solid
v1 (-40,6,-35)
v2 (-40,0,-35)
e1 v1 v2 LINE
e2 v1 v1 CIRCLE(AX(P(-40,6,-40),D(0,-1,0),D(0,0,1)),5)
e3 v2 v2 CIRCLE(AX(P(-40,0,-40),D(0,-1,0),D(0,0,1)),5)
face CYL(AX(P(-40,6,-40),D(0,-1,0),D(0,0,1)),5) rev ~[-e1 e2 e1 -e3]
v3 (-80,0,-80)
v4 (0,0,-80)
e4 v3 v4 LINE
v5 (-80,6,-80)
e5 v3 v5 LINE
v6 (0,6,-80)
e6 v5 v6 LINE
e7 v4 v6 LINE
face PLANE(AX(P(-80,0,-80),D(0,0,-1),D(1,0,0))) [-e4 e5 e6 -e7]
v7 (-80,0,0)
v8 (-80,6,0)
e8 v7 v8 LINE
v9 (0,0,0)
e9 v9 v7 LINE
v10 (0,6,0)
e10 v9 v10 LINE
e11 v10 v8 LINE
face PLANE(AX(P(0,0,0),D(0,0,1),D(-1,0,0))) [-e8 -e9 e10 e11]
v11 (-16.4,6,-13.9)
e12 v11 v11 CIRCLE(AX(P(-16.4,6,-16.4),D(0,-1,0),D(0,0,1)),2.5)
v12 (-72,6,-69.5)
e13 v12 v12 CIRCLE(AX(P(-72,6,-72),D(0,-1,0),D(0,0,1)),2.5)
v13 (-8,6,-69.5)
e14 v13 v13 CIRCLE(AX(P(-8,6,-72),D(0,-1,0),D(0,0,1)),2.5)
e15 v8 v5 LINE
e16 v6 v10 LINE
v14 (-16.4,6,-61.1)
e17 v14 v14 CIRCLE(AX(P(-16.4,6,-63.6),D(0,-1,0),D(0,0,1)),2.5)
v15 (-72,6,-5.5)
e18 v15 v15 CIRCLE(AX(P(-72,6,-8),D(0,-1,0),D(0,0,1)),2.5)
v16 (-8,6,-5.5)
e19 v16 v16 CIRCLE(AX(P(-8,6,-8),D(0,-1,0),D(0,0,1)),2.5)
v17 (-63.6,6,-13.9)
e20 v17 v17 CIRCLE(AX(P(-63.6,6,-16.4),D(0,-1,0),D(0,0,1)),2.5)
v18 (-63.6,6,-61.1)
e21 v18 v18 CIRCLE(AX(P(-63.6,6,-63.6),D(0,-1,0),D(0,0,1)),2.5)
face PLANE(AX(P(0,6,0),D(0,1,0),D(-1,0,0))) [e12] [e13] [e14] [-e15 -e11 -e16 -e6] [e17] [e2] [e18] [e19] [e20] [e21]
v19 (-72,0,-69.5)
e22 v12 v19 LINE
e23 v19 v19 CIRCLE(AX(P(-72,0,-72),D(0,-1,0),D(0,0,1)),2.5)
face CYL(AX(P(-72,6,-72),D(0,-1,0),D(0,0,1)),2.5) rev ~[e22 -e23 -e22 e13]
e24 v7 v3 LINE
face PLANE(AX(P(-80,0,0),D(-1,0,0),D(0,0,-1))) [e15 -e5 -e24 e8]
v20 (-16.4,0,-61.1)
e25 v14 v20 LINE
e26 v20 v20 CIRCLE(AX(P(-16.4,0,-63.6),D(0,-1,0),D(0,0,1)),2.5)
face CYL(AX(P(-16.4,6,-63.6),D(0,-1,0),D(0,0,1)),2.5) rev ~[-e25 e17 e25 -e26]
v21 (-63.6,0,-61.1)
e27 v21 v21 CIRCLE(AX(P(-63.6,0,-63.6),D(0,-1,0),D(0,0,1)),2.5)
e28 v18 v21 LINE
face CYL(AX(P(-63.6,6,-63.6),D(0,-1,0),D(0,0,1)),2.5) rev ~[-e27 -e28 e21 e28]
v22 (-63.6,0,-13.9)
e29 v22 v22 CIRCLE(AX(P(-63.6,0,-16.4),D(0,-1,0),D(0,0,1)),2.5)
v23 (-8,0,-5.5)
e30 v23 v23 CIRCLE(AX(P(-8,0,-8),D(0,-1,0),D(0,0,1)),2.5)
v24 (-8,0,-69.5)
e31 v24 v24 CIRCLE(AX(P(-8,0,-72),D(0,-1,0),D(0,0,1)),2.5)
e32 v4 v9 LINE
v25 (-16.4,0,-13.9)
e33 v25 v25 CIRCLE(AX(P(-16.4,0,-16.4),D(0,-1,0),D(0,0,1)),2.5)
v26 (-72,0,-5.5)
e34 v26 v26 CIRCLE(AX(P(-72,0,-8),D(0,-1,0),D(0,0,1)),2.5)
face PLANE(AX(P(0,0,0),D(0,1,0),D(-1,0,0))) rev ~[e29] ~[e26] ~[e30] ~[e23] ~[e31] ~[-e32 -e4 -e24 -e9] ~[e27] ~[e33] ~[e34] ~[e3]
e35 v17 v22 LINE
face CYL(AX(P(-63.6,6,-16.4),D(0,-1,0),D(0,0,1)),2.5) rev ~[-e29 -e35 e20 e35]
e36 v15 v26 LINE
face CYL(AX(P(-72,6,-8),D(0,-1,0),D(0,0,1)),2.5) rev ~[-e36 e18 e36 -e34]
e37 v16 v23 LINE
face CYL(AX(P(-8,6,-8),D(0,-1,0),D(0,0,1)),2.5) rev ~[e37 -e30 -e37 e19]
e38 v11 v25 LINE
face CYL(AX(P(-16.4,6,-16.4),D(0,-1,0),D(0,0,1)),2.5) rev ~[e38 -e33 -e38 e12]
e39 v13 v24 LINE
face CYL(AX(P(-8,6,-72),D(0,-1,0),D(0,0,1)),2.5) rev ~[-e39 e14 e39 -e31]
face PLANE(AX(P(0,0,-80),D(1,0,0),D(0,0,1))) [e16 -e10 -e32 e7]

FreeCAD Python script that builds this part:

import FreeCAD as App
import Part
import Sketcher
from FreeCAD import Vector


def add_polygon(sketch, points):
    """Adds a closed chain of lines whose ends are joined by coincident constraints."""
    first, n = sketch.GeometryCount, len(points)
    for a, b in zip(points, points[1:] + points[:1]):
        sketch.addGeometry(Part.LineSegment(App.Vector(*a, 0), App.Vector(*b, 0)), False)
    for i in range(n):
        sketch.addConstraint(Sketcher.Constraint("Coincident", first + i, 2, first + (i + 1) % n, 1))

doc = App.newDocument("Part")
body = doc.addObject("PartDesign::Body", "Body")

# Sketch on XZ plane
sketch1 = doc.addObject("Sketcher::SketchObject", "Sketch")
body.addObject(sketch1)
sketch1.AttachmentSupport = (doc.XZ_Plane, [""])
sketch1.MapMode = "FlatFace"
add_polygon(sketch1, [(-80, 0), (0, 0), (0, -80), (-80, -80)])  # lines 0-3
sketch1.addConstraint([
    Sketcher.Constraint("Horizontal", 0),
    Sketcher.Constraint("Vertical", 1),
    Sketcher.Constraint("Horizontal", 2),
    Sketcher.Constraint("Vertical", 3),
    Sketcher.Constraint("Coincident", 0, 2, -1, 1),
    Sketcher.Constraint("Equal", 2, 1),
    Sketcher.Constraint("DistanceX", 0, 1, 0, 2, 80.0),
])
pad1 = doc.addObject("PartDesign::Pad", "Pad")
body.addObject(pad1)
pad1.Profile = sketch1
pad1.Length = 6
pad1.Reversed = True

# Sketch on XZ plane
sketch2 = doc.addObject("Sketcher::SketchObject", "Sketch001")
body.addObject(sketch2)
sketch2.AttachmentSupport = (doc.XZ_Plane, [""])
sketch2.MapMode = "FlatFace"
sketch2.AttachmentOffset = App.Placement(Vector(0, 0, -6), App.Rotation())
sketch2.addGeometry([
    Part.Circle(Vector(-16.4, -16.4, 0), Vector(0, 0, 1), 2.5),
    Part.Circle(Vector(-16.4, -63.6, 0), Vector(0, 0, 1), 2.5),
    Part.Circle(Vector(-63.6, -63.6, 0), Vector(0, 0, 1), 2.5),
    Part.Circle(Vector(-63.6, -16.4, 0), Vector(0, 0, 1), 2.5),
], False)
sketch2.addConstraint([
    Sketcher.Constraint("Equal", 0, 1),
    Sketcher.Constraint("Equal", 1, 2),
    Sketcher.Constraint("Equal", 2, 3),
    Sketcher.Constraint("Horizontal", 1, 3, 2, 3),
    Sketcher.Constraint("Horizontal", 0, 3, 3, 3),
    Sketcher.Constraint("Vertical", 0, 3, 1, 3),
    Sketcher.Constraint("Vertical", 2, 3, 3, 3),
    Sketcher.Constraint("Diameter", 0, 5.0),
    Sketcher.Constraint("DistanceX", 0, 3, -1, 1, 16.4),
    Sketcher.Constraint("DistanceY", 0, 3, -1, 1, 16.4),
    Sketcher.Constraint("DistanceY", 1, 3, -1, 1, 63.6),
    Sketcher.Constraint("DistanceX", 2, 3, -1, 1, 63.6),
])
doc.recompute()
hole = doc.addObject("PartDesign::Hole", "Hole")
body.addObject(hole)
hole.Profile = sketch2
hole.ThreadType = "None"
hole.Diameter = 5
hole.DepthType = "Dimension"
hole.Depth = 6
hole.DrillPoint = "Flat"
hole.Reversed = True

# Sketch on XZ plane
sketch3 = doc.addObject("Sketcher::SketchObject", "Sketch002")
body.addObject(sketch3)
sketch3.AttachmentSupport = (doc.XZ_Plane, [""])
sketch3.MapMode = "FlatFace"
sketch3.AttachmentOffset = App.Placement(Vector(0, 0, -6), App.Rotation())
sketch3.addGeometry([
    Part.Circle(Vector(-8, -8, 0), Vector(0, 0, 1), 2.5),
    Part.Circle(Vector(-8, -72, 0), Vector(0, 0, 1), 2.5),
    Part.Circle(Vector(-72, -72, 0), Vector(0, 0, 1), 2.5),
    Part.Circle(Vector(-72, -8, 0), Vector(0, 0, 1), 2.5),
], False)
sketch3.addConstraint([
    Sketcher.Constraint("Equal", 0, 1),
    Sketcher.Constraint("Equal", 1, 2),
    Sketcher.Constraint("Equal", 2, 3),
    Sketcher.Constraint("Horizontal", 1, 3, 2, 3),
    Sketcher.Constraint("Horizontal", 0, 3, 3, 3),
    Sketcher.Constraint("Vertical", 0, 3, 1, 3),
    Sketcher.Constraint("Vertical", 2, 3, 3, 3),
    Sketcher.Constraint("Diameter", 0, 5.0),
    Sketcher.Constraint("DistanceX", 0, 3, -1, 1, 8.0),
    Sketcher.Constraint("DistanceY", 0, 3, -1, 1, 8.0),
    Sketcher.Constraint("DistanceY", 1, 3, -1, 1, 72.0),
    Sketcher.Constraint("DistanceX", 2, 3, -1, 1, 72.0),
])
doc.recompute()
hole2 = doc.addObject("PartDesign::Hole", "Hole001")
body.addObject(hole2)
hole2.Profile = sketch3
hole2.ThreadType = "None"
hole2.Diameter = 5
hole2.DepthType = "Dimension"
hole2.Depth = 6
hole2.DrillPoint = "Flat"
hole2.Reversed = True

# Sketch on XZ plane
sketch4 = doc.addObject("Sketcher::SketchObject", "Sketch003")
body.addObject(sketch4)
sketch4.AttachmentSupport = (doc.XZ_Plane, [""])
sketch4.MapMode = "FlatFace"
sketch4.AttachmentOffset = App.Placement(Vector(0, 0, -6), App.Rotation())
sketch4.addGeometry(Part.Circle(Vector(-40, -40, 0), Vector(0, 0, 1), 5), False)
sketch4.addConstraint([
    Sketcher.Constraint("Diameter", 0, 10.0),
    Sketcher.Constraint("DistanceX", 0, 3, -1, 1, 40.0),
    Sketcher.Constraint("DistanceY", 0, 3, -1, 1, 40.0),
])
doc.recompute()
hole3 = doc.addObject("PartDesign::Hole", "Hole002")
body.addObject(hole3)
hole3.Profile = sketch4
hole3.ThreadType = "None"
hole3.Diameter = 10
hole3.DepthType = "Dimension"
hole3.Depth = 6
hole3.DrillPoint = "Flat"
hole3.Reversed = True

doc.recompute()
